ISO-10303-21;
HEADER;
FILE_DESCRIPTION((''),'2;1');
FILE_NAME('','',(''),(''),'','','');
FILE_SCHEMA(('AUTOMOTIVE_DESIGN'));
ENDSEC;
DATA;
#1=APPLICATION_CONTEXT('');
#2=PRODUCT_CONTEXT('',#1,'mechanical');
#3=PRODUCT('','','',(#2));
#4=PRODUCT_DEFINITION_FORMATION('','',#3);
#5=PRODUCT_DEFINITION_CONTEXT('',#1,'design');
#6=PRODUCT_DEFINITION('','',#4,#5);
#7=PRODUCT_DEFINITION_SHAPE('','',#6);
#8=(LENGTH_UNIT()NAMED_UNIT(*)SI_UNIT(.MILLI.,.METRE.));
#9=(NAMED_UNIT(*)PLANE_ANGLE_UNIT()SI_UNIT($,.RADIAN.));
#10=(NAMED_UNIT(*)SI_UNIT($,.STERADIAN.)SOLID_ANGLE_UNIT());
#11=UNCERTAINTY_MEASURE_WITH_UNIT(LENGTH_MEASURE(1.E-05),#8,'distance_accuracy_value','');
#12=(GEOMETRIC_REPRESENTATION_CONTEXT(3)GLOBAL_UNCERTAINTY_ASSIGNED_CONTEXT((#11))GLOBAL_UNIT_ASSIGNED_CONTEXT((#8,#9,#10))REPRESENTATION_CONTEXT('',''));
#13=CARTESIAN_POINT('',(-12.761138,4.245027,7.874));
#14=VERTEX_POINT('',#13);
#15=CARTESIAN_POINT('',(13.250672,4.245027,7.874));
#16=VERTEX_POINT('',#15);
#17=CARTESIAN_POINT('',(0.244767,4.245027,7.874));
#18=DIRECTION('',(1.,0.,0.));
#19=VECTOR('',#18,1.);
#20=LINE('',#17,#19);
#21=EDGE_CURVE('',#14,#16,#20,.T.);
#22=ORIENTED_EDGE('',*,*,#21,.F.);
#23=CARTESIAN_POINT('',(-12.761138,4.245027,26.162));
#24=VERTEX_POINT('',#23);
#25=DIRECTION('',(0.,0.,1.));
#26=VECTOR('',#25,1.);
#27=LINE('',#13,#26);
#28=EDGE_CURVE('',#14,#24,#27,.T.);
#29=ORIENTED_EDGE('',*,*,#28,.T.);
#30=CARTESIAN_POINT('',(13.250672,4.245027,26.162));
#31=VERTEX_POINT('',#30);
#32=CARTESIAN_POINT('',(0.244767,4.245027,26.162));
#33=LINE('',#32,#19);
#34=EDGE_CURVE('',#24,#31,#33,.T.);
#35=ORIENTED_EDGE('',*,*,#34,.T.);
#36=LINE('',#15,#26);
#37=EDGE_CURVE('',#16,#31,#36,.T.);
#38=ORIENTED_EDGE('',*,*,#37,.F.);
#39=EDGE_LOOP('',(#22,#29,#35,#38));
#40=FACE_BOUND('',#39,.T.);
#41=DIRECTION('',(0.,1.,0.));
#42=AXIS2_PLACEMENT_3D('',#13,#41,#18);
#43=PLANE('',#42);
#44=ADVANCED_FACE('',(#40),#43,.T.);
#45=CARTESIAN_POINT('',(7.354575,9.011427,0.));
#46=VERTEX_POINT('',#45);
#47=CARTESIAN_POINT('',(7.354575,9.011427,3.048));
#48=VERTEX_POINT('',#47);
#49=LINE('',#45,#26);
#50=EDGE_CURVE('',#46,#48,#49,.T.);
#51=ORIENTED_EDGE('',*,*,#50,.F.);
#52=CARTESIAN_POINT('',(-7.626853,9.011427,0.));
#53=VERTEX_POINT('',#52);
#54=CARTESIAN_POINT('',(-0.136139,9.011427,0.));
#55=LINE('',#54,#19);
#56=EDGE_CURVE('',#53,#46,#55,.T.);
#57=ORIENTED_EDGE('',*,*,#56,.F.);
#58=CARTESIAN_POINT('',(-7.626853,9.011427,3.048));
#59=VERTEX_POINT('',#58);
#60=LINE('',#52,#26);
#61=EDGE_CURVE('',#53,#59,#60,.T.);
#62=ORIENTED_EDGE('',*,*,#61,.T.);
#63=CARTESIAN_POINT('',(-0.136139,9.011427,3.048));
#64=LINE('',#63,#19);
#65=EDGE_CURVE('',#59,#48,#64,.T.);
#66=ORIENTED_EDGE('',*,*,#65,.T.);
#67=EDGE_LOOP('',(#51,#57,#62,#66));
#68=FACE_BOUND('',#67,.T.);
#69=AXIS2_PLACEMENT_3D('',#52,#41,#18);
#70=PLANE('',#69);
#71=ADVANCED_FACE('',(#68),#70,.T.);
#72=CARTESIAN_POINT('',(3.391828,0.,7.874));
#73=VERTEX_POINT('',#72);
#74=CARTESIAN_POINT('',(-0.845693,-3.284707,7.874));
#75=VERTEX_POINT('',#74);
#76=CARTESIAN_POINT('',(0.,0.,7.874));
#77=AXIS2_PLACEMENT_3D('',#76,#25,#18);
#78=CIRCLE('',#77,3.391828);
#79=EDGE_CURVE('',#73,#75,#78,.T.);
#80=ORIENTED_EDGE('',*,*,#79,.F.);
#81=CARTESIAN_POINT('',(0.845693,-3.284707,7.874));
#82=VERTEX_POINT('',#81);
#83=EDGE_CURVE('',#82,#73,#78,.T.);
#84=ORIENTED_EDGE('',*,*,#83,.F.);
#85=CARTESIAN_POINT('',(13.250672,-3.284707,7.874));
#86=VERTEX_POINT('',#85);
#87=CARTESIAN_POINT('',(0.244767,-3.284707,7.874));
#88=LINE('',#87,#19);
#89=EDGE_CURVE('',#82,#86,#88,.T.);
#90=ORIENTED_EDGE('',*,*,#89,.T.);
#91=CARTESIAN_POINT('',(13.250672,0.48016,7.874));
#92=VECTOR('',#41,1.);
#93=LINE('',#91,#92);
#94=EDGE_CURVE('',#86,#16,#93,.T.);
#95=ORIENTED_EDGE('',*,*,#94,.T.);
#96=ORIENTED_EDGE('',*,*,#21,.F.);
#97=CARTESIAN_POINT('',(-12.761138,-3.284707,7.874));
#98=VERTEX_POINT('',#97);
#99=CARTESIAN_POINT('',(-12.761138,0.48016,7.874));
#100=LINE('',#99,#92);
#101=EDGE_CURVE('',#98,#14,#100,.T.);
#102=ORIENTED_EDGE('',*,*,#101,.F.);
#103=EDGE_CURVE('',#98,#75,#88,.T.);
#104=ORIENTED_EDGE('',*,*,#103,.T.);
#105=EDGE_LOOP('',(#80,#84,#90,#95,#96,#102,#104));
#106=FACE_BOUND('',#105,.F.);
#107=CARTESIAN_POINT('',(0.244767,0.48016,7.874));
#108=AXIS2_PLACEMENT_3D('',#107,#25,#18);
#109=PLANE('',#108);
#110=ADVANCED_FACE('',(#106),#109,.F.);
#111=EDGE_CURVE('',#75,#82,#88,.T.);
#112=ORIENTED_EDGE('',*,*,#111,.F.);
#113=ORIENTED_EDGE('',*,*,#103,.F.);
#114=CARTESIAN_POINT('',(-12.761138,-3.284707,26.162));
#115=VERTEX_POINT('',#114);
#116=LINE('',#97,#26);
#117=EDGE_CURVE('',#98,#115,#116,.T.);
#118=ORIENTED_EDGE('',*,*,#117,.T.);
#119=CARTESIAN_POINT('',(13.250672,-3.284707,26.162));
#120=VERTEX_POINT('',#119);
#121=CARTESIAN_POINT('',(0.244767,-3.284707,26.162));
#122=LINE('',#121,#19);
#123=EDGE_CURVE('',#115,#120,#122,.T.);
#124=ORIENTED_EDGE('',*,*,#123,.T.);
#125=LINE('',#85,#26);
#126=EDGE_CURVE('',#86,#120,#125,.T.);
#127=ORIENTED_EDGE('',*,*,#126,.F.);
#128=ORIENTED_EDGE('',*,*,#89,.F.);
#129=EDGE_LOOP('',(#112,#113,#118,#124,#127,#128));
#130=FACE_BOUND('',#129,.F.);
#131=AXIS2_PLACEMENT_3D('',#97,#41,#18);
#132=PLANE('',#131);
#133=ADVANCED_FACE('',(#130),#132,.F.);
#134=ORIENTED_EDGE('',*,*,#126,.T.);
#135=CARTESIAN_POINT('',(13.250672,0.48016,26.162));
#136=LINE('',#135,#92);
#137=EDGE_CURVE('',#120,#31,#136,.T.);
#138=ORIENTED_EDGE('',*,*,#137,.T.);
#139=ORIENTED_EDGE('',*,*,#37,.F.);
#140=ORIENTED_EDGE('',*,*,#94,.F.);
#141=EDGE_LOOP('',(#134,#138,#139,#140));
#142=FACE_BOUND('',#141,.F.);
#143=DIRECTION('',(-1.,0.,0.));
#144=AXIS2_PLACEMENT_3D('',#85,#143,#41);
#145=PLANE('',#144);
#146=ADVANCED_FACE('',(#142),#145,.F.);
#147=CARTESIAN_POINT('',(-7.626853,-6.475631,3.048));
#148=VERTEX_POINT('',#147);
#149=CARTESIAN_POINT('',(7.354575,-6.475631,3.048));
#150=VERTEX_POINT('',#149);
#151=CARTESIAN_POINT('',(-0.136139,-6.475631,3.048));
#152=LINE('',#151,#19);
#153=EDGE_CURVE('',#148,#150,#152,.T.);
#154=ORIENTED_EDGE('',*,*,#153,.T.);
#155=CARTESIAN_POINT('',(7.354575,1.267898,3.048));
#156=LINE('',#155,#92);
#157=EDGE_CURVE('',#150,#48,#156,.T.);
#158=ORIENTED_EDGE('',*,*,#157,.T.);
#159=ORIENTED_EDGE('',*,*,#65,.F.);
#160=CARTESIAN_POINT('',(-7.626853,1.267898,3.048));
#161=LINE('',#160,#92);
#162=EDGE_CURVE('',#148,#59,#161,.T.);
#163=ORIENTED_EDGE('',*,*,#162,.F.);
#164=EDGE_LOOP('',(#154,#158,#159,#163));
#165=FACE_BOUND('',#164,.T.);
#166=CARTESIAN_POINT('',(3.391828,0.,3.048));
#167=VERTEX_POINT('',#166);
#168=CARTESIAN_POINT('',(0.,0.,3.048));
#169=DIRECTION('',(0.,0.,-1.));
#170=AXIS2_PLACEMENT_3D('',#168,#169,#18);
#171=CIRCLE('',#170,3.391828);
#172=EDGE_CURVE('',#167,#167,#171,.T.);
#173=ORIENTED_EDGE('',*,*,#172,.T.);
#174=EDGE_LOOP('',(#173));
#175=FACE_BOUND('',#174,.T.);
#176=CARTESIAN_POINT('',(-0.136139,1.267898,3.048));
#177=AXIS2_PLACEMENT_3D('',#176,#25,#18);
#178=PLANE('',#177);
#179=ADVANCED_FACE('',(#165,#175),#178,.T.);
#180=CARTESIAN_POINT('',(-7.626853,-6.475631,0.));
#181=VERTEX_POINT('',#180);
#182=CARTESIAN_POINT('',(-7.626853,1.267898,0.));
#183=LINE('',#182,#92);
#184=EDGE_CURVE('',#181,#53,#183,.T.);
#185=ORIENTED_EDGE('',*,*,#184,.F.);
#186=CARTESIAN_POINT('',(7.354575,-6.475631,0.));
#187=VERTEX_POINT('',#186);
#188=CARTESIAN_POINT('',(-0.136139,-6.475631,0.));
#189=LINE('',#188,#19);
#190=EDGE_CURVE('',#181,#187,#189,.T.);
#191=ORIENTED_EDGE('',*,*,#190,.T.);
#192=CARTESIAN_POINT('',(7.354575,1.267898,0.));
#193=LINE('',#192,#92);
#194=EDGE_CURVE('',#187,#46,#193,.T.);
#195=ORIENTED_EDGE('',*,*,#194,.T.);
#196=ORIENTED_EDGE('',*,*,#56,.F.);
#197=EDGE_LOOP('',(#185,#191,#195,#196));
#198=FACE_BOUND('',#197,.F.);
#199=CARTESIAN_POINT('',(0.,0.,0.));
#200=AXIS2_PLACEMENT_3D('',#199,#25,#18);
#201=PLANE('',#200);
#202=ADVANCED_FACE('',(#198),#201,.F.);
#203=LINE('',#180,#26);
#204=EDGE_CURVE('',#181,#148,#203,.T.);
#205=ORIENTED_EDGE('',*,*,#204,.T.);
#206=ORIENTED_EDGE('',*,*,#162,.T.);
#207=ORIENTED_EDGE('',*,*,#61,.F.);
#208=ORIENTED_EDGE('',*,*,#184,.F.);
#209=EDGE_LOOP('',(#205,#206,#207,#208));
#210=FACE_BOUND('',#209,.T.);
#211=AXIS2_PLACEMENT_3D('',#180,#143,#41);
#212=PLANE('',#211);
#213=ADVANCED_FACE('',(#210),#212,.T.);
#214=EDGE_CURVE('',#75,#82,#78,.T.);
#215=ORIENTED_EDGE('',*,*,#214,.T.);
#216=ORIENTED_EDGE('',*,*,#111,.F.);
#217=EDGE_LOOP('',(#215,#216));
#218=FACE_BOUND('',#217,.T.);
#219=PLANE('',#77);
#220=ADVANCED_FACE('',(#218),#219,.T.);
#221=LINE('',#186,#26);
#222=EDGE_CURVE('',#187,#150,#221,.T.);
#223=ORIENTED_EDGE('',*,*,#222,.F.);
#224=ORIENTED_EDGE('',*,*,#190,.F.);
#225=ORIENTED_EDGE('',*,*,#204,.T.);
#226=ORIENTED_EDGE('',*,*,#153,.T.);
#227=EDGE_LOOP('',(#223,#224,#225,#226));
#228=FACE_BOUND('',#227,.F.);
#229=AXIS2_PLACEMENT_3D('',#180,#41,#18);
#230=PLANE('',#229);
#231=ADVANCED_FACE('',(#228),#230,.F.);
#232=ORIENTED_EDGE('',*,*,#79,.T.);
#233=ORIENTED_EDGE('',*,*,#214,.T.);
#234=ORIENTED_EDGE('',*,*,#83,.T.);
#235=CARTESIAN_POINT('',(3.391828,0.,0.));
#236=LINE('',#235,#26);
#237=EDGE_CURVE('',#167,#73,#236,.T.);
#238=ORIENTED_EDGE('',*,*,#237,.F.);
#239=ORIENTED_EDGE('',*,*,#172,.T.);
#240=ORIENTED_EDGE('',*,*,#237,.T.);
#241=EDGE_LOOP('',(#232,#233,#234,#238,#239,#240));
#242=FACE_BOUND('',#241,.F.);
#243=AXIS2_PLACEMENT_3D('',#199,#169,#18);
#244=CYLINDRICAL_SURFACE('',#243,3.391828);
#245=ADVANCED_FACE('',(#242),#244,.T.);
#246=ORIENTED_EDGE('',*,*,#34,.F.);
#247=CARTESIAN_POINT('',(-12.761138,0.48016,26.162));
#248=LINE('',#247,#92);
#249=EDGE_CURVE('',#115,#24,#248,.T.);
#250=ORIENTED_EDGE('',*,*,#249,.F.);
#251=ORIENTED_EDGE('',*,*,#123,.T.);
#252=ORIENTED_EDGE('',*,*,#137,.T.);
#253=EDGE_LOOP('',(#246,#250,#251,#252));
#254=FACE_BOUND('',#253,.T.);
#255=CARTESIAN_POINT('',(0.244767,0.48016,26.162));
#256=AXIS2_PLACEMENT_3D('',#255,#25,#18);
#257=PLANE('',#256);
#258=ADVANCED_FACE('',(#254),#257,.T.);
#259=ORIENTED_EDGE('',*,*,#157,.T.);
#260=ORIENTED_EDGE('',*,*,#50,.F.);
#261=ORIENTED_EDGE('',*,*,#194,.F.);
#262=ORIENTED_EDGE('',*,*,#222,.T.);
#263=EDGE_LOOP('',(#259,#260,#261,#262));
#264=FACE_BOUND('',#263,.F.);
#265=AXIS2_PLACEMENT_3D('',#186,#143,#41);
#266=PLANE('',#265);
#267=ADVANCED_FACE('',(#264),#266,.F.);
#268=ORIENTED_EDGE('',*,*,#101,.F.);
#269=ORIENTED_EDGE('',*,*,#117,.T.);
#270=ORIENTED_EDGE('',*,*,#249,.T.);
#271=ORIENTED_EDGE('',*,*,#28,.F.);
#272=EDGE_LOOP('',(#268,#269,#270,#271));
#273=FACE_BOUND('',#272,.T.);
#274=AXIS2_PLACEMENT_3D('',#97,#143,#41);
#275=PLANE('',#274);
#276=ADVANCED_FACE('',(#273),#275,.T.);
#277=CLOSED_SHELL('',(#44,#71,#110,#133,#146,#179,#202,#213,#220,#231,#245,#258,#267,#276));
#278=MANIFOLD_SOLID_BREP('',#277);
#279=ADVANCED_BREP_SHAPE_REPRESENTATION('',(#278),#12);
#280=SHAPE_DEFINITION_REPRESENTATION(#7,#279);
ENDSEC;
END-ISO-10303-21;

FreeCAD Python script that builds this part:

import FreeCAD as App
import Part
import Sketcher
Q = App.Units.Quantity


def add_polygon(sketch, points):
    """Adds a closed chain of lines whose ends are joined by coincident constraints."""
    first, n = sketch.GeometryCount, len(points)
    for a, b in zip(points, points[1:] + points[:1]):
        sketch.addGeometry(Part.LineSegment(App.Vector(*a, 0), App.Vector(*b, 0)), False)
    for i in range(n):
        sketch.addConstraint(Sketcher.Constraint("Coincident", first + i, 2, first + (i + 1) % n, 1))

doc = App.newDocument("Part")
body = doc.addObject("PartDesign::Body", "Body")

sketch1 = body.newObject("Sketcher::SketchObject", "Sketch")
sketch1.AttachmentSupport = (doc.getObject("XY_Plane"), [""])
sketch1.MapMode = "FlatFace"
add_polygon(sketch1, [(-8, 9), (-8, -6), (7, -6), (7, 9)])
sketch1.addConstraint([
    Sketcher.Constraint("Vertical", 0),
    Sketcher.Constraint("Horizontal", 1),
    Sketcher.Constraint("Vertical", 2),
    Sketcher.Constraint("Horizontal", 3),
    Sketcher.Constraint("DistanceX", 1, 1, 1, 2, 14.981428),
    Sketcher.Constraint("DistanceY", 0, 2, 0, 1, 15.487057),
    Sketcher.Constraint("DistanceY", 0, 2, -1, 1, 6.475631),
    Sketcher.Constraint("DistanceX", 0, 2, -1, 1, 7.626853),
])
pad1 = body.newObject("PartDesign::Pad", "Pad")
pad1.Profile = sketch1
pad1.Length = Q("0.12 in")

sketch2 = body.newObject("Sketcher::SketchObject", "Sketch001")
sketch2.AttachmentSupport = (doc.getObject("XY_Plane"), [""])
sketch2.MapMode = "FlatFace"
sketch2.addGeometry(Part.Circle(App.Vector(0, 0, 0), App.Vector(0, 0, 1), 3.4), False)
sketch2.addConstraint([
    Sketcher.Constraint("Coincident", 0, 3, -1, 1),
    Sketcher.Constraint("Diameter", 0, 6.783656),
])
pad2 = body.newObject("PartDesign::Pad", "Pad001")
pad2.Profile = sketch2
pad2.Length = Q("0.31 in")

sketch3 = body.newObject("Sketcher::SketchObject", "Sketch002")
sketch3.AttachmentSupport = (doc.getObject("XY_Plane"), [""])
sketch3.MapMode = "FlatFace"
sketch3.AttachmentOffset = App.Placement(App.Vector(0, 0, 0.31 * 25.4), App.Rotation())
add_polygon(sketch3, [(-13, 4), (-13, -3), (13, -3), (13, 4)])
sketch3.addConstraint([
    Sketcher.Constraint("Vertical", 0),
    Sketcher.Constraint("Horizontal", 1),
    Sketcher.Constraint("Vertical", 2),
    Sketcher.Constraint("Horizontal", 3),
    Sketcher.Constraint("DistanceX", 1, 1, 1, 2, 26.01181),
    Sketcher.Constraint("DistanceY", 0, 2, 0, 1, 7.529734),
    Sketcher.Constraint("DistanceX", 0, 2, -1, 1, 12.761138),
    Sketcher.Constraint("DistanceY", 0, 2, -1, 1, 3.284707),
])
pad3 = body.newObject("PartDesign::Pad", "Pad002")
pad3.Profile = sketch3
pad3.Length = Q("0.72 in")

doc.recompute()
